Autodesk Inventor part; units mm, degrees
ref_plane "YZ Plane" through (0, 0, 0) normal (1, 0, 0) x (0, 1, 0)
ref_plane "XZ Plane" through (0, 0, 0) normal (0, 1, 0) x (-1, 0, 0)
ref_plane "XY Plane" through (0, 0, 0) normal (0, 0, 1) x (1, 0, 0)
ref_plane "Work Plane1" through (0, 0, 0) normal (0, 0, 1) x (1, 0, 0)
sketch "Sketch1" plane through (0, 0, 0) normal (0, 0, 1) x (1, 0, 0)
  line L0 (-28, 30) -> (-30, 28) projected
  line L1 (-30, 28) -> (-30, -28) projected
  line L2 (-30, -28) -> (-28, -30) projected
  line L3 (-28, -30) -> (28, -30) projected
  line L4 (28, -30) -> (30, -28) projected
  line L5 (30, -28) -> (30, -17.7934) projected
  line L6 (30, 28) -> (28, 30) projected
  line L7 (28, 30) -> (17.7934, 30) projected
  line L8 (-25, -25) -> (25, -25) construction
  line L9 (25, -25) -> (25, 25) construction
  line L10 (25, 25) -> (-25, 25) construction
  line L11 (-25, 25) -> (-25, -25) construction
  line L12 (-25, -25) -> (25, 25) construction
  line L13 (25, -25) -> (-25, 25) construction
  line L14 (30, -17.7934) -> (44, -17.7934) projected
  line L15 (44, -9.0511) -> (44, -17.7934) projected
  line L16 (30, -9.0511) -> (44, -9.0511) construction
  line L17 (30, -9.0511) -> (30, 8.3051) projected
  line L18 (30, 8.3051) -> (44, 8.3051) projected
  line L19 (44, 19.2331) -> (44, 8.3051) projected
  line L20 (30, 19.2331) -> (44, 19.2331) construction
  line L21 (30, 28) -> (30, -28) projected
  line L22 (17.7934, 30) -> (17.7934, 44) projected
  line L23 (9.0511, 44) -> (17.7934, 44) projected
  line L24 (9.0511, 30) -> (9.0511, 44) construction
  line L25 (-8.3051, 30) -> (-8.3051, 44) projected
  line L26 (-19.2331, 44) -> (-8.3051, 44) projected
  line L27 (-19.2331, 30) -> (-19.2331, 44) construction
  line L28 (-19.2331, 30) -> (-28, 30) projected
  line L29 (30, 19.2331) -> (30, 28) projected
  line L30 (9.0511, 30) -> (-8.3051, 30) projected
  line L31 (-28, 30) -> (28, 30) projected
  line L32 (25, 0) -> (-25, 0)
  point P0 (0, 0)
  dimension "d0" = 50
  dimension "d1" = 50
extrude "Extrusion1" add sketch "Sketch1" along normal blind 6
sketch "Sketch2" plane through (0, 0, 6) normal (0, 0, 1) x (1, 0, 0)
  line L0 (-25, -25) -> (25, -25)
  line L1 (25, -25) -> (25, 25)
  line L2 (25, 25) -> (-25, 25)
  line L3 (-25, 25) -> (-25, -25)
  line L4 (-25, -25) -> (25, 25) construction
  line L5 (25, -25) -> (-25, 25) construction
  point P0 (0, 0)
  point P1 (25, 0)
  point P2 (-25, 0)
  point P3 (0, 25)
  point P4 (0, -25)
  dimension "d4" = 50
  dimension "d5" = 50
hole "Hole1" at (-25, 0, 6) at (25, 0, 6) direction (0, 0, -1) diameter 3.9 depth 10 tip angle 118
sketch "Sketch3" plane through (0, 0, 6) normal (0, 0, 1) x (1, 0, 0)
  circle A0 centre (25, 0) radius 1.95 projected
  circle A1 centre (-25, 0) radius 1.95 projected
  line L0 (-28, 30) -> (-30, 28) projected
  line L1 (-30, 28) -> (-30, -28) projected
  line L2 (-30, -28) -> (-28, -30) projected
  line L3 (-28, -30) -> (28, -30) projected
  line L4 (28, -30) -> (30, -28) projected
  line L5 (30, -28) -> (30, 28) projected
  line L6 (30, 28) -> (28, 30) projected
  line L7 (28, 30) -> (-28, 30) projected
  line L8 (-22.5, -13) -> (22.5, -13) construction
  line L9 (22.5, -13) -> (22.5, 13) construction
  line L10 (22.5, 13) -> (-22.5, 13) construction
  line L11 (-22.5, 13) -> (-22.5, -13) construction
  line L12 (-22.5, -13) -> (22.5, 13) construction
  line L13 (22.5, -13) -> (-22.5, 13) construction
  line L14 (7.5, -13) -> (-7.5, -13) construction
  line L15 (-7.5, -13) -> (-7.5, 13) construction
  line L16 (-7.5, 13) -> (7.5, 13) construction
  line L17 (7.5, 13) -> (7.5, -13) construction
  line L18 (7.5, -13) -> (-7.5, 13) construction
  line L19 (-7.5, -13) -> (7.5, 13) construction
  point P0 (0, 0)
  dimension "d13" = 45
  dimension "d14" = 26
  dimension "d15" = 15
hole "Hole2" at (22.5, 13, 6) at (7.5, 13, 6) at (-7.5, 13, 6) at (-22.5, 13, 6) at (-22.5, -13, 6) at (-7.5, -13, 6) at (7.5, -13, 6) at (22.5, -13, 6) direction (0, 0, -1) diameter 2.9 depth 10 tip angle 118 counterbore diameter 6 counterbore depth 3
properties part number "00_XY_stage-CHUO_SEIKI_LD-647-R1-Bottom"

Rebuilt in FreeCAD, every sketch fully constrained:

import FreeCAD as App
import Part
import Sketcher

V = App.Vector
Q = App.Units.Quantity

doc = App.newDocument("Part")
body = doc.addObject("PartDesign::Body", "Body")

# Sketch on XY plane
sketch1 = doc.addObject("Sketcher::SketchObject", "Sketch")
body.addObject(sketch1)
sketch1.AttachmentSupport = (doc.XY_Plane, [""])
sketch1.MapMode = "FlatFace"
sketch1.addGeometry(Part.LineSegment(V(28, 30, 0), V(-28, 30, 0)), False)
sketch1.addGeometry(Part.LineSegment(V(-28, 30, 0), V(-30, 28, 0)), False)
sketch1.addGeometry(Part.LineSegment(V(-30, 28, 0), V(-30, -28, 0)), False)
sketch1.addGeometry(Part.LineSegment(V(-30, -28, 0), V(-28, -30, 0)), False)
sketch1.addGeometry(Part.LineSegment(V(-28, -30, 0), V(28, -30, 0)), False)
sketch1.addGeometry(Part.LineSegment(V(28, -30, 0), V(30, -28, 0)), False)
sketch1.addGeometry(Part.LineSegment(V(30, -28, 0), V(30, 28, 0)), False)
sketch1.addGeometry(Part.LineSegment(V(30, 28, 0), V(28, 30, 0)), False)
sketch1.addConstraint(Sketcher.Constraint("Coincident", 0, 2, 1, 1))
sketch1.addConstraint(Sketcher.Constraint("Coincident", 1, 2, 2, 1))
sketch1.addConstraint(Sketcher.Constraint("Coincident", 2, 2, 3, 1))
sketch1.addConstraint(Sketcher.Constraint("Coincident", 3, 2, 4, 1))
sketch1.addConstraint(Sketcher.Constraint("Coincident", 4, 2, 5, 1))
sketch1.addConstraint(Sketcher.Constraint("Coincident", 5, 2, 6, 1))
sketch1.addConstraint(Sketcher.Constraint("Coincident", 6, 2, 7, 1))
sketch1.addConstraint(Sketcher.Constraint("Coincident", 7, 2, 0, 1))
sketch1.addConstraint(Sketcher.Constraint("Horizontal", 0))
sketch1.addConstraint(Sketcher.Constraint("Vertical", 2))
sketch1.addConstraint(Sketcher.Constraint("Horizontal", 4))
sketch1.addConstraint(Sketcher.Constraint("Vertical", 6))
sketch1.addConstraint(Sketcher.Constraint("Symmetric", 0, 2, 4, 2, -1, 1))
sketch1.addConstraint(Sketcher.Constraint("Symmetric", 1, 2, 5, 2, -1, 1))
sketch1.addConstraint(Sketcher.Constraint("Perpendicular", 1, 3))
sketch1.addConstraint(Sketcher.Constraint("Perpendicular", 5, 7))
sketch1.addConstraint(Sketcher.Constraint("Horizontal", 2, 2, 5, 2))
sketch1.addConstraint(Sketcher.Constraint("Horizontal", 1, 2, 6, 2))
sketch1.addConstraint(Sketcher.Constraint("Vertical", 0, 2, 3, 2))
sketch1.addConstraint(Sketcher.Constraint("Equal", 4, 2))
sketch1.addConstraint(Sketcher.Constraint("DistanceX", 0, 2, 0, 1, Q("56 mm")))
sketch1.addConstraint(Sketcher.Constraint("DistanceY", -1, 1, 0, 2, Q("30 mm")))
pad1 = doc.addObject("PartDesign::Pad", "Pad")
body.addObject(pad1)
pad1.Profile = sketch1
pad1.Length = 6

# Sketch on XY plane
sketch2 = doc.addObject("Sketcher::SketchObject", "Sketch001")
body.addObject(sketch2)
sketch2.AttachmentSupport = (doc.XY_Plane, [""])
sketch2.MapMode = "FlatFace"
sketch2.AttachmentOffset = App.Placement(V(0, 0, 6), App.Rotation())
sketch2.addGeometry(Part.Circle(V(-25, 0, 0), V(0, 0, 1), 1.9), False)
sketch2.addGeometry(Part.Circle(V(25, 0, 0), V(0, 0, 1), 1.9), False)
sketch2.addConstraint(Sketcher.Constraint("Equal", 0, 1))
sketch2.addConstraint(Sketcher.Constraint("Symmetric", 0, 3, 1, 3, -1, 1))
sketch2.addConstraint(Sketcher.Constraint("PointOnObject", 0, 3, -1))
sketch2.addConstraint(Sketcher.Constraint("Diameter", 0, Q("3.9 mm")))
sketch2.addConstraint(Sketcher.Constraint("DistanceX", 0, 3, -1, 1, Q("25 mm")))
doc.recompute()
hole = doc.addObject("PartDesign::Hole", "Hole")
body.addObject(hole)
hole.Profile = sketch2
hole.ThreadType = "None"
hole.Diameter = 3.9
hole.DepthType = "Dimension"
hole.Depth = 10
hole.DrillPoint = "Angled"
hole.DrillPointAngle = 118

# Sketch on XY plane
sketch3 = doc.addObject("Sketcher::SketchObject", "Sketch002")
body.addObject(sketch3)
sketch3.AttachmentSupport = (doc.XY_Plane, [""])
sketch3.MapMode = "FlatFace"
sketch3.AttachmentOffset = App.Placement(V(0, 0, 6), App.Rotation())
sketch3.addGeometry(Part.Circle(V(22.5, 13, 0), V(0, 0, 1), 1.4), False)
sketch3.addGeometry(Part.Circle(V(7.5, 13, 0), V(0, 0, 1), 1.4), False)
sketch3.addGeometry(Part.Circle(V(-7.5, 13, 0), V(0, 0, 1), 1.4), False)
sketch3.addGeometry(Part.Circle(V(-22.5, 13, 0), V(0, 0, 1), 1.4), False)
sketch3.addGeometry(Part.Circle(V(-22.5, -13, 0), V(0, 0, 1), 1.4), False)
sketch3.addGeometry(Part.Circle(V(-7.5, -13, 0), V(0, 0, 1), 1.4), False)
sketch3.addGeometry(Part.Circle(V(7.5, -13, 0), V(0, 0, 1), 1.4), False)
sketch3.addGeometry(Part.Circle(V(22.5, -13, 0), V(0, 0, 1), 1.4), False)
sketch3.addConstraint(Sketcher.Constraint("Equal", 0, 1))
sketch3.addConstraint(Sketcher.Constraint("Equal", 1, 2))
sketch3.addConstraint(Sketcher.Constraint("Equal", 2, 3))
sketch3.addConstraint(Sketcher.Constraint("Equal", 3, 4))
sketch3.addConstraint(Sketcher.Constraint("Equal", 4, 5))
sketch3.addConstraint(Sketcher.Constraint("Equal", 5, 6))
sketch3.addConstraint(Sketcher.Constraint("Equal", 6, 7))
sketch3.addConstraint(Sketcher.Constraint("Symmetric", 0, 3, 4, 3, -1, 1))
sketch3.addConstraint(Sketcher.Constraint("Symmetric", 1, 3, 5, 3, -1, 1))
sketch3.addConstraint(Sketcher.Constraint("Symmetric", 2, 3, 6, 3, -1, 1))
sketch3.addConstraint(Sketcher.Constraint("Symmetric", 3, 3, 7, 3, -1, 1))
sketch3.addConstraint(Sketcher.Constraint("Symmetric", 1, 3, 2, 3, -2))
sketch3.addConstraint(Sketcher.Constraint("Symmetric", 0, 3, 3, 3, -2))
sketch3.addConstraint(Sketcher.Constraint("Horizontal", 0, 3, 1, 3))
sketch3.addConstraint(Sketcher.Constraint("Diameter", 0, Q("2.9 mm")))
sketch3.addConstraint(Sketcher.Constraint("DistanceY", -1, 1, 0, 3, Q("13 mm")))
sketch3.addConstraint(Sketcher.Constraint("DistanceX", 1, 3, 0, 3, Q("15 mm")))
sketch3.addConstraint(Sketcher.Constraint("DistanceX", 2, 3, 1, 3, Q("15 mm")))
doc.recompute()
hole2 = doc.addObject("PartDesign::Hole", "Hole001")
body.addObject(hole2)
hole2.Profile = sketch3
hole2.ThreadType = "None"
hole2.Diameter = 2.9
hole2.DepthType = "Dimension"
hole2.Depth = 10
hole2.DrillPoint = "Angled"
hole2.DrillPointAngle = 118
hole2.HoleCutType = "Counterbore"
hole2.HoleCutDiameter = 6
hole2.HoleCutDepth = 3

doc.recompute()
